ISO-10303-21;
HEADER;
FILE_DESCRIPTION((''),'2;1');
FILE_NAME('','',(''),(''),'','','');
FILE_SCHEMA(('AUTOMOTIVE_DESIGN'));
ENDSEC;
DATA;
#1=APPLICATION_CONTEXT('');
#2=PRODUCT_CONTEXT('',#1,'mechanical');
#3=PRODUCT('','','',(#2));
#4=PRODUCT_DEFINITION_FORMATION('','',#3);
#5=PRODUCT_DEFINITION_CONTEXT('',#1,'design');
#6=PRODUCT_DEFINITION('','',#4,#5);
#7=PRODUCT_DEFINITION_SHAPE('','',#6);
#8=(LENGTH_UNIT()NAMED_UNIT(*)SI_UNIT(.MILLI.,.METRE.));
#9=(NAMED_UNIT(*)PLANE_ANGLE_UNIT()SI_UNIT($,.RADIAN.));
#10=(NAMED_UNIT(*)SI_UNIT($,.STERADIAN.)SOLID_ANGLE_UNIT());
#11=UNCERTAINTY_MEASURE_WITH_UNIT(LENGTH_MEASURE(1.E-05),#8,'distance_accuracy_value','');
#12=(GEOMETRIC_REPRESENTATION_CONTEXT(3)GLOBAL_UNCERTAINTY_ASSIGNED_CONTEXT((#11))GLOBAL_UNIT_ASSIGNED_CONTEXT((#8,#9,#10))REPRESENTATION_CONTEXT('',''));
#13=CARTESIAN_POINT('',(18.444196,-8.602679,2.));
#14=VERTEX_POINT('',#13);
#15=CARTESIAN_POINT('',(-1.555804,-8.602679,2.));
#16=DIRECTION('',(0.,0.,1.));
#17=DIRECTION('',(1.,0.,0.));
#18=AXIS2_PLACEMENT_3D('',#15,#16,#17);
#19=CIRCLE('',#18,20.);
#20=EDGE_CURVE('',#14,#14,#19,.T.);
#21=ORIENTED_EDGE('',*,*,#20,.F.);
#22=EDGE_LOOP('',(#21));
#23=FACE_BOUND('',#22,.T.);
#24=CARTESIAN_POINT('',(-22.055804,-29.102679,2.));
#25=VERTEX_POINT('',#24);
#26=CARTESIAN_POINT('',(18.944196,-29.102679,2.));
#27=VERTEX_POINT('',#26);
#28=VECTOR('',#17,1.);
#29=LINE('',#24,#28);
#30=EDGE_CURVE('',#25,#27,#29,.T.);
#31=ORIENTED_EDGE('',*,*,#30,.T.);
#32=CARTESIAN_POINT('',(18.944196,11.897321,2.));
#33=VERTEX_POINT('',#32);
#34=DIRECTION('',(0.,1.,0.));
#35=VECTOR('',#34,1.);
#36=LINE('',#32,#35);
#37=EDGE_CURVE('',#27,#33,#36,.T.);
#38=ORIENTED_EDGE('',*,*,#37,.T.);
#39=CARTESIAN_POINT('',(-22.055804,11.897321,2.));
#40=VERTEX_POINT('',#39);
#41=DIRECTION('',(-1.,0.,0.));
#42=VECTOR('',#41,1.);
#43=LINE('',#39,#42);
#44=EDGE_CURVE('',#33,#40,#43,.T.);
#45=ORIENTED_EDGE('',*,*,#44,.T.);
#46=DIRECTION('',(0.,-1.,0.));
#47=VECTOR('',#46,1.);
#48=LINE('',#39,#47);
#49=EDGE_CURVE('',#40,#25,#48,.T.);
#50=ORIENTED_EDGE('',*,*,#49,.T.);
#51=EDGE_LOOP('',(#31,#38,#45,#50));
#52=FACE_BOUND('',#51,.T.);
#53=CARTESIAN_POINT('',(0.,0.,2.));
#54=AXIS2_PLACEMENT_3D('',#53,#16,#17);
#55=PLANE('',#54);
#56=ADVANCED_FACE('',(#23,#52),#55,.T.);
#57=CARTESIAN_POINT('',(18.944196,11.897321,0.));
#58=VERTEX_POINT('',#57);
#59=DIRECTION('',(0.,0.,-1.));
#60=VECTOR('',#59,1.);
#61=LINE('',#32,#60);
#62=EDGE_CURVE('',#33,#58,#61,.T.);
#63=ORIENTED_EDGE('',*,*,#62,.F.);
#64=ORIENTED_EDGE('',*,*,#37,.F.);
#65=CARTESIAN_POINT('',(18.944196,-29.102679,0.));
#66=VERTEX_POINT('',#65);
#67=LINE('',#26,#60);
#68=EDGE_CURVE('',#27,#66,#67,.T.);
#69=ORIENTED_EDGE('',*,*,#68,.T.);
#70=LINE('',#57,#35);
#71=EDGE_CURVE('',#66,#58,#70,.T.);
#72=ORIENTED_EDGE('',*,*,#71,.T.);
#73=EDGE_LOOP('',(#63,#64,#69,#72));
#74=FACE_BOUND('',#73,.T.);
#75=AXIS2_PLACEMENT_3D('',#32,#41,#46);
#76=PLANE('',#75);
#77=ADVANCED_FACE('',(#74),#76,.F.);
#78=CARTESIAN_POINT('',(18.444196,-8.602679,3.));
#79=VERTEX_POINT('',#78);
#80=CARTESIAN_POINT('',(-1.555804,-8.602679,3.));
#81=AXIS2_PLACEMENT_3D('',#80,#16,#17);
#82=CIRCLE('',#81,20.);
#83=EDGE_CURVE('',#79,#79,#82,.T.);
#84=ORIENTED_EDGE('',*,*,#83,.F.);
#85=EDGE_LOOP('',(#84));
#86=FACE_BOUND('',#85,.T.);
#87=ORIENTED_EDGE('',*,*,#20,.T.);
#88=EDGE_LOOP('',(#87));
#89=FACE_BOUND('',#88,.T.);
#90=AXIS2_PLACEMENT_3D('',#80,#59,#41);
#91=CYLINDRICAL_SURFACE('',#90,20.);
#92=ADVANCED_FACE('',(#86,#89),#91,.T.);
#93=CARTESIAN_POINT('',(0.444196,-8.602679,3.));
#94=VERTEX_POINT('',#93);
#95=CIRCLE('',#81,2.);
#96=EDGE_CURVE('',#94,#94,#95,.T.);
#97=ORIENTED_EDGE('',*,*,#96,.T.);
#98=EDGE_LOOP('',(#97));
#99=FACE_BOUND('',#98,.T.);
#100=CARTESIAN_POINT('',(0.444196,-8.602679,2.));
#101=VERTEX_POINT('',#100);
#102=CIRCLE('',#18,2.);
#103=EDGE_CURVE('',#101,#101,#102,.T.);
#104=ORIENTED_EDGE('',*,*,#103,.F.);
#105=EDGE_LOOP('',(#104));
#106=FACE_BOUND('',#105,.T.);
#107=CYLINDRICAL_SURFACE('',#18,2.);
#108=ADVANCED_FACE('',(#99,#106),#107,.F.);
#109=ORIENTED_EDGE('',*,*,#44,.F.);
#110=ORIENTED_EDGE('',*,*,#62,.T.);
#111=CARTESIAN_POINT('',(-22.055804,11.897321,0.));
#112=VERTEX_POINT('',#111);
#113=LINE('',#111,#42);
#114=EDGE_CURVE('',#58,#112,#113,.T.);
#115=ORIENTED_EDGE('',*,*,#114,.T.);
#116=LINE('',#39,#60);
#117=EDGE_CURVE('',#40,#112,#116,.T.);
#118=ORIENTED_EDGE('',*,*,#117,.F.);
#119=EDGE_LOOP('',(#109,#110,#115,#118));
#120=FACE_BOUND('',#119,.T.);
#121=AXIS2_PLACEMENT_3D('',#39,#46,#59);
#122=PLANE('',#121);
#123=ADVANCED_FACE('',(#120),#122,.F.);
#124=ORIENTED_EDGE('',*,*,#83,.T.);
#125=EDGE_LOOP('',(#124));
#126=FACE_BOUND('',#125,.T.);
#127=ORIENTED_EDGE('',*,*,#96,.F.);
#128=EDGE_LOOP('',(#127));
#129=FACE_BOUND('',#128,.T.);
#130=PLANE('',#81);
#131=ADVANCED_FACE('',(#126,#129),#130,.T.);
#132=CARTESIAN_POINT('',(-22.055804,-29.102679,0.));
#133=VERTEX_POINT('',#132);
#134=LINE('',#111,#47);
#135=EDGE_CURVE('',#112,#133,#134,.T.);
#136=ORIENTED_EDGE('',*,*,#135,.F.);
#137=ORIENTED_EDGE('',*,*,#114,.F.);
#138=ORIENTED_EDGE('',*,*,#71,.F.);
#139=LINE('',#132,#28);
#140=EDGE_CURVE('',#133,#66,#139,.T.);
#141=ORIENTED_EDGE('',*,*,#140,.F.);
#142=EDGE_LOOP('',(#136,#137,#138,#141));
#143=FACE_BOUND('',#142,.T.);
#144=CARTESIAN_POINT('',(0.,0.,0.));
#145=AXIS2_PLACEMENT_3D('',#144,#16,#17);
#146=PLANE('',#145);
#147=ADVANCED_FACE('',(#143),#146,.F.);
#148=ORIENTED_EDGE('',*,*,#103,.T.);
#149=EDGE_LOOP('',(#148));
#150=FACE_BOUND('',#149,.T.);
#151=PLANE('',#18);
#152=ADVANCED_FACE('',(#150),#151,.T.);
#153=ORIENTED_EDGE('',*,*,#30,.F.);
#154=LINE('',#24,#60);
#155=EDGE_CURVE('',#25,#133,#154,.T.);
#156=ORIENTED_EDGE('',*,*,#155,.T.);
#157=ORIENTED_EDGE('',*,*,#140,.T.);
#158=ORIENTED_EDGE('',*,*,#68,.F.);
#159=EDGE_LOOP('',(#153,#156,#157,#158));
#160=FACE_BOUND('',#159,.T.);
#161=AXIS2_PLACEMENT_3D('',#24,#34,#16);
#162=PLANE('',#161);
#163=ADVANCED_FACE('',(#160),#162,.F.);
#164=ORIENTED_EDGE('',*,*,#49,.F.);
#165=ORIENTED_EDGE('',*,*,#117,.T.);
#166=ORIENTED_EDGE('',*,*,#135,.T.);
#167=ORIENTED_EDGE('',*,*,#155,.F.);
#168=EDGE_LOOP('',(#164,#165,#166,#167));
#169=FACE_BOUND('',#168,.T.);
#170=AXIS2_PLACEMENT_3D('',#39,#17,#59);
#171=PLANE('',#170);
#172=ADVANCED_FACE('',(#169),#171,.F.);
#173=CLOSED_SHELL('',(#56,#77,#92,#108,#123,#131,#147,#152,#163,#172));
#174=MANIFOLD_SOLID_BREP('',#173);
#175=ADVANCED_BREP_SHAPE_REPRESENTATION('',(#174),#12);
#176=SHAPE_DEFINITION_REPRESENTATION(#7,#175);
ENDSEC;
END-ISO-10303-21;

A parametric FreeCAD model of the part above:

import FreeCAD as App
import Part
import Sketcher
Q = App.Units.Quantity

doc = App.newDocument("Part")
params = doc.addObject("Spreadsheet::Sheet", "Params")
for row, (alias, value) in enumerate([
    ("sketch1_width", "41 mm"),
    ("pad1_length", "2 mm"),
    ("sketch2_diameter", "40 mm"),
    ("pad2_length", "1 mm"),
    ("sketch3_diameter", "4 mm"),
    ("pocket1_length", "1 mm"),
], start=1):
    params.set(f"A{row}", alias)
    params.set(f"B{row}", "=" + value)
    params.setAlias(f"B{row}", alias)

body = doc.addObject("PartDesign::Body", "Body")

sketch1 = body.newObject("Sketcher::SketchObject", "Sketch")
sketch1.AttachmentSupport = (doc.getObject("XY_Plane"), [""])
sketch1.MapMode = "FlatFace"
sketch1.addGeometry(Part.LineSegment(App.Vector(-22, 12, 0), App.Vector(-22, -29, 0)), False)
sketch1.addGeometry(Part.LineSegment(App.Vector(-22, -29, 0), App.Vector(19, -29, 0)), False)
sketch1.addGeometry(Part.LineSegment(App.Vector(19, -29, 0), App.Vector(19, 12, 0)), False)
sketch1.addGeometry(Part.LineSegment(App.Vector(19, 12, 0), App.Vector(-22, 12, 0)), False)
sketch1.addConstraint(Sketcher.Constraint("Coincident", 0, 2, 1, 1))
sketch1.addConstraint(Sketcher.Constraint("Coincident", 1, 2, 2, 1))
sketch1.addConstraint(Sketcher.Constraint("Coincident", 2, 2, 3, 1))
sketch1.addConstraint(Sketcher.Constraint("Coincident", 3, 2, 0, 1))
sketch1.addConstraint(Sketcher.Constraint("Vertical", 0))
sketch1.addConstraint(Sketcher.Constraint("Horizontal", 1))
sketch1.addConstraint(Sketcher.Constraint("Vertical", 2))
sketch1.addConstraint(Sketcher.Constraint("Horizontal", 3))
sketch1.addConstraint(Sketcher.Constraint("Equal", 3, 0))
sketch1.addConstraint(Sketcher.Constraint("DistanceX", 1, 1, 1, 2, Q("41 mm")))
sketch1.addConstraint(Sketcher.Constraint("DistanceY", 0, 2, -1, 1, Q("29.102679 mm")))
sketch1.addConstraint(Sketcher.Constraint("DistanceX", 0, 2, -1, 1, Q("22.055804 mm")))
sketch1.setExpression("Constraints[9]", "Params.sketch1_width")
pad1 = body.newObject("PartDesign::Pad", "Pad")
pad1.Profile = sketch1
pad1.setExpression("Length", "Params.pad1_length")

sketch2 = body.newObject("Sketcher::SketchObject", "Sketch001")
sketch2.AttachmentSupport = (doc.getObject("XY_Plane"), [""])
sketch2.MapMode = "FlatFace"
sketch2.AttachmentOffset = App.Placement(App.Vector(0, 0, 2), App.Rotation())
sketch2.addGeometry(Part.Circle(App.Vector(-2, -9, 0), App.Vector(0, 0, 1), 20), False)
sketch2.addConstraint(Sketcher.Constraint("Diameter", 0, Q("40 mm")))
sketch2.addConstraint(Sketcher.Constraint("DistanceY", 0, 3, -1, 1, Q("8.602679 mm")))
sketch2.addConstraint(Sketcher.Constraint("DistanceX", 0, 3, -1, 1, Q("1.555804 mm")))
sketch2.setExpression("Constraints[0]", "Params.sketch2_diameter")
pad2 = body.newObject("PartDesign::Pad", "Pad001")
pad2.Profile = sketch2
pad2.setExpression("Length", "Params.pad2_length")

sketch3 = body.newObject("Sketcher::SketchObject", "Sketch002")
sketch3.AttachmentSupport = (doc.getObject("XY_Plane"), [""])
sketch3.MapMode = "FlatFace"
sketch3.AttachmentOffset = App.Placement(App.Vector(0, 0, 3), App.Rotation())
sketch3.addGeometry(Part.Circle(App.Vector(-1.6, -8.6, 0), App.Vector(0, 0, 1), 2), False)
sketch3.addConstraint(Sketcher.Constraint("Diameter", 0, Q("4 mm")))
sketch3.addConstraint(Sketcher.Constraint("DistanceY", 0, 3, -1, 1, Q("8.602679 mm")))
sketch3.addConstraint(Sketcher.Constraint("DistanceX", 0, 3, -1, 1, Q("1.555804 mm")))
sketch3.setExpression("Constraints[0]", "Params.sketch3_diameter")
pocket1 = body.newObject("PartDesign::Pocket", "Pocket")
pocket1.Profile = sketch3
pocket1.setExpression("Length", "Params.pocket1_length")

doc.recompute()
